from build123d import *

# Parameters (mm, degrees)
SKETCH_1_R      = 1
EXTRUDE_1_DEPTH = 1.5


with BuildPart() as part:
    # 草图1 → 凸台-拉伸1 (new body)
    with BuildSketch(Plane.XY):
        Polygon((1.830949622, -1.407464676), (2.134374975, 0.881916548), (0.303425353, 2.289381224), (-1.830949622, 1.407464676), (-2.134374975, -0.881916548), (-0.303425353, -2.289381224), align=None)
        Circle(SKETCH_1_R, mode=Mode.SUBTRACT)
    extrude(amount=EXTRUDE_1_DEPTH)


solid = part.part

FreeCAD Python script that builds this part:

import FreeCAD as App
import Part
import Sketcher
from FreeCAD import Vector
Q = App.Units.Quantity


def add_polygon(sketch, points):
    """Adds a closed chain of lines whose ends are joined by coincident constraints."""
    first, n = sketch.GeometryCount, len(points)
    for a, b in zip(points, points[1:] + points[:1]):
        sketch.addGeometry(Part.LineSegment(App.Vector(*a, 0), App.Vector(*b, 0)), False)
    for i in range(n):
        sketch.addConstraint(Sketcher.Constraint("Coincident", first + i, 2, first + (i + 1) % n, 1))

doc = App.newDocument("Part")
params = doc.addObject("Spreadsheet::Sheet", "Params")
for row, (alias, value) in enumerate([
    ("sketch1_diameter", "2 mm"),
    ("pad1_length", "1.5 mm"),
], start=1):
    params.set(f"A{row}", alias)
    params.set(f"B{row}", "=" + value)
    params.setAlias(f"B{row}", alias)

body = doc.addObject("PartDesign::Body", "Body")

sketch1 = doc.addObject("Sketcher::SketchObject", "Sketch")
body.addObject(sketch1)
sketch1.AttachmentSupport = (doc.XY_Plane, [""])
sketch1.MapMode = "FlatFace"
add_polygon(sketch1, [(1.8, -1.4), (2.1, 0.9), (0.3, 2.3), (-1.8, 1.4), (-2.1, -0.9), (-0.3, -2.3)])
sketch1.addGeometry(Part.Circle(Vector(0, 0, 0), Vector(0, 0, 1), 1), False)
sketch1.addConstraint([
    Sketcher.Constraint("Coincident", 6, 3, -1, 1),
    Sketcher.Constraint("Symmetric", 0, 2, 3, 2, -1, 1),
    Sketcher.Constraint("Symmetric", 1, 2, 4, 2, -1, 1),
    Sketcher.Constraint("Symmetric", 2, 2, 5, 2, -1, 1),
    Sketcher.Constraint("Equal", 0, 1),
    Sketcher.Constraint("Equal", 1, 2),
    Sketcher.Constraint("Diameter", 6, Q("2 mm")),
    Sketcher.Constraint("Distance", 0, Q("2.309401 mm")),
    Sketcher.Constraint("DistanceX", 3, 2, 1, 2, Q("2.4378 mm")),
    Sketcher.Constraint("DistanceY", -1, 1, 1, 2, Q("2.289381 mm")),
    Sketcher.Constraint("DistanceX", 2, 2, -1, 1, Q("1.83095 mm")),
])
sketch1.setExpression("Constraints[12]", "Params.sketch1_diameter")
pad1 = doc.addObject("PartDesign::Pad", "Pad")
body.addObject(pad1)
pad1.Profile = sketch1
pad1.setExpression("Length", "Params.pad1_length")

doc.recompute()
